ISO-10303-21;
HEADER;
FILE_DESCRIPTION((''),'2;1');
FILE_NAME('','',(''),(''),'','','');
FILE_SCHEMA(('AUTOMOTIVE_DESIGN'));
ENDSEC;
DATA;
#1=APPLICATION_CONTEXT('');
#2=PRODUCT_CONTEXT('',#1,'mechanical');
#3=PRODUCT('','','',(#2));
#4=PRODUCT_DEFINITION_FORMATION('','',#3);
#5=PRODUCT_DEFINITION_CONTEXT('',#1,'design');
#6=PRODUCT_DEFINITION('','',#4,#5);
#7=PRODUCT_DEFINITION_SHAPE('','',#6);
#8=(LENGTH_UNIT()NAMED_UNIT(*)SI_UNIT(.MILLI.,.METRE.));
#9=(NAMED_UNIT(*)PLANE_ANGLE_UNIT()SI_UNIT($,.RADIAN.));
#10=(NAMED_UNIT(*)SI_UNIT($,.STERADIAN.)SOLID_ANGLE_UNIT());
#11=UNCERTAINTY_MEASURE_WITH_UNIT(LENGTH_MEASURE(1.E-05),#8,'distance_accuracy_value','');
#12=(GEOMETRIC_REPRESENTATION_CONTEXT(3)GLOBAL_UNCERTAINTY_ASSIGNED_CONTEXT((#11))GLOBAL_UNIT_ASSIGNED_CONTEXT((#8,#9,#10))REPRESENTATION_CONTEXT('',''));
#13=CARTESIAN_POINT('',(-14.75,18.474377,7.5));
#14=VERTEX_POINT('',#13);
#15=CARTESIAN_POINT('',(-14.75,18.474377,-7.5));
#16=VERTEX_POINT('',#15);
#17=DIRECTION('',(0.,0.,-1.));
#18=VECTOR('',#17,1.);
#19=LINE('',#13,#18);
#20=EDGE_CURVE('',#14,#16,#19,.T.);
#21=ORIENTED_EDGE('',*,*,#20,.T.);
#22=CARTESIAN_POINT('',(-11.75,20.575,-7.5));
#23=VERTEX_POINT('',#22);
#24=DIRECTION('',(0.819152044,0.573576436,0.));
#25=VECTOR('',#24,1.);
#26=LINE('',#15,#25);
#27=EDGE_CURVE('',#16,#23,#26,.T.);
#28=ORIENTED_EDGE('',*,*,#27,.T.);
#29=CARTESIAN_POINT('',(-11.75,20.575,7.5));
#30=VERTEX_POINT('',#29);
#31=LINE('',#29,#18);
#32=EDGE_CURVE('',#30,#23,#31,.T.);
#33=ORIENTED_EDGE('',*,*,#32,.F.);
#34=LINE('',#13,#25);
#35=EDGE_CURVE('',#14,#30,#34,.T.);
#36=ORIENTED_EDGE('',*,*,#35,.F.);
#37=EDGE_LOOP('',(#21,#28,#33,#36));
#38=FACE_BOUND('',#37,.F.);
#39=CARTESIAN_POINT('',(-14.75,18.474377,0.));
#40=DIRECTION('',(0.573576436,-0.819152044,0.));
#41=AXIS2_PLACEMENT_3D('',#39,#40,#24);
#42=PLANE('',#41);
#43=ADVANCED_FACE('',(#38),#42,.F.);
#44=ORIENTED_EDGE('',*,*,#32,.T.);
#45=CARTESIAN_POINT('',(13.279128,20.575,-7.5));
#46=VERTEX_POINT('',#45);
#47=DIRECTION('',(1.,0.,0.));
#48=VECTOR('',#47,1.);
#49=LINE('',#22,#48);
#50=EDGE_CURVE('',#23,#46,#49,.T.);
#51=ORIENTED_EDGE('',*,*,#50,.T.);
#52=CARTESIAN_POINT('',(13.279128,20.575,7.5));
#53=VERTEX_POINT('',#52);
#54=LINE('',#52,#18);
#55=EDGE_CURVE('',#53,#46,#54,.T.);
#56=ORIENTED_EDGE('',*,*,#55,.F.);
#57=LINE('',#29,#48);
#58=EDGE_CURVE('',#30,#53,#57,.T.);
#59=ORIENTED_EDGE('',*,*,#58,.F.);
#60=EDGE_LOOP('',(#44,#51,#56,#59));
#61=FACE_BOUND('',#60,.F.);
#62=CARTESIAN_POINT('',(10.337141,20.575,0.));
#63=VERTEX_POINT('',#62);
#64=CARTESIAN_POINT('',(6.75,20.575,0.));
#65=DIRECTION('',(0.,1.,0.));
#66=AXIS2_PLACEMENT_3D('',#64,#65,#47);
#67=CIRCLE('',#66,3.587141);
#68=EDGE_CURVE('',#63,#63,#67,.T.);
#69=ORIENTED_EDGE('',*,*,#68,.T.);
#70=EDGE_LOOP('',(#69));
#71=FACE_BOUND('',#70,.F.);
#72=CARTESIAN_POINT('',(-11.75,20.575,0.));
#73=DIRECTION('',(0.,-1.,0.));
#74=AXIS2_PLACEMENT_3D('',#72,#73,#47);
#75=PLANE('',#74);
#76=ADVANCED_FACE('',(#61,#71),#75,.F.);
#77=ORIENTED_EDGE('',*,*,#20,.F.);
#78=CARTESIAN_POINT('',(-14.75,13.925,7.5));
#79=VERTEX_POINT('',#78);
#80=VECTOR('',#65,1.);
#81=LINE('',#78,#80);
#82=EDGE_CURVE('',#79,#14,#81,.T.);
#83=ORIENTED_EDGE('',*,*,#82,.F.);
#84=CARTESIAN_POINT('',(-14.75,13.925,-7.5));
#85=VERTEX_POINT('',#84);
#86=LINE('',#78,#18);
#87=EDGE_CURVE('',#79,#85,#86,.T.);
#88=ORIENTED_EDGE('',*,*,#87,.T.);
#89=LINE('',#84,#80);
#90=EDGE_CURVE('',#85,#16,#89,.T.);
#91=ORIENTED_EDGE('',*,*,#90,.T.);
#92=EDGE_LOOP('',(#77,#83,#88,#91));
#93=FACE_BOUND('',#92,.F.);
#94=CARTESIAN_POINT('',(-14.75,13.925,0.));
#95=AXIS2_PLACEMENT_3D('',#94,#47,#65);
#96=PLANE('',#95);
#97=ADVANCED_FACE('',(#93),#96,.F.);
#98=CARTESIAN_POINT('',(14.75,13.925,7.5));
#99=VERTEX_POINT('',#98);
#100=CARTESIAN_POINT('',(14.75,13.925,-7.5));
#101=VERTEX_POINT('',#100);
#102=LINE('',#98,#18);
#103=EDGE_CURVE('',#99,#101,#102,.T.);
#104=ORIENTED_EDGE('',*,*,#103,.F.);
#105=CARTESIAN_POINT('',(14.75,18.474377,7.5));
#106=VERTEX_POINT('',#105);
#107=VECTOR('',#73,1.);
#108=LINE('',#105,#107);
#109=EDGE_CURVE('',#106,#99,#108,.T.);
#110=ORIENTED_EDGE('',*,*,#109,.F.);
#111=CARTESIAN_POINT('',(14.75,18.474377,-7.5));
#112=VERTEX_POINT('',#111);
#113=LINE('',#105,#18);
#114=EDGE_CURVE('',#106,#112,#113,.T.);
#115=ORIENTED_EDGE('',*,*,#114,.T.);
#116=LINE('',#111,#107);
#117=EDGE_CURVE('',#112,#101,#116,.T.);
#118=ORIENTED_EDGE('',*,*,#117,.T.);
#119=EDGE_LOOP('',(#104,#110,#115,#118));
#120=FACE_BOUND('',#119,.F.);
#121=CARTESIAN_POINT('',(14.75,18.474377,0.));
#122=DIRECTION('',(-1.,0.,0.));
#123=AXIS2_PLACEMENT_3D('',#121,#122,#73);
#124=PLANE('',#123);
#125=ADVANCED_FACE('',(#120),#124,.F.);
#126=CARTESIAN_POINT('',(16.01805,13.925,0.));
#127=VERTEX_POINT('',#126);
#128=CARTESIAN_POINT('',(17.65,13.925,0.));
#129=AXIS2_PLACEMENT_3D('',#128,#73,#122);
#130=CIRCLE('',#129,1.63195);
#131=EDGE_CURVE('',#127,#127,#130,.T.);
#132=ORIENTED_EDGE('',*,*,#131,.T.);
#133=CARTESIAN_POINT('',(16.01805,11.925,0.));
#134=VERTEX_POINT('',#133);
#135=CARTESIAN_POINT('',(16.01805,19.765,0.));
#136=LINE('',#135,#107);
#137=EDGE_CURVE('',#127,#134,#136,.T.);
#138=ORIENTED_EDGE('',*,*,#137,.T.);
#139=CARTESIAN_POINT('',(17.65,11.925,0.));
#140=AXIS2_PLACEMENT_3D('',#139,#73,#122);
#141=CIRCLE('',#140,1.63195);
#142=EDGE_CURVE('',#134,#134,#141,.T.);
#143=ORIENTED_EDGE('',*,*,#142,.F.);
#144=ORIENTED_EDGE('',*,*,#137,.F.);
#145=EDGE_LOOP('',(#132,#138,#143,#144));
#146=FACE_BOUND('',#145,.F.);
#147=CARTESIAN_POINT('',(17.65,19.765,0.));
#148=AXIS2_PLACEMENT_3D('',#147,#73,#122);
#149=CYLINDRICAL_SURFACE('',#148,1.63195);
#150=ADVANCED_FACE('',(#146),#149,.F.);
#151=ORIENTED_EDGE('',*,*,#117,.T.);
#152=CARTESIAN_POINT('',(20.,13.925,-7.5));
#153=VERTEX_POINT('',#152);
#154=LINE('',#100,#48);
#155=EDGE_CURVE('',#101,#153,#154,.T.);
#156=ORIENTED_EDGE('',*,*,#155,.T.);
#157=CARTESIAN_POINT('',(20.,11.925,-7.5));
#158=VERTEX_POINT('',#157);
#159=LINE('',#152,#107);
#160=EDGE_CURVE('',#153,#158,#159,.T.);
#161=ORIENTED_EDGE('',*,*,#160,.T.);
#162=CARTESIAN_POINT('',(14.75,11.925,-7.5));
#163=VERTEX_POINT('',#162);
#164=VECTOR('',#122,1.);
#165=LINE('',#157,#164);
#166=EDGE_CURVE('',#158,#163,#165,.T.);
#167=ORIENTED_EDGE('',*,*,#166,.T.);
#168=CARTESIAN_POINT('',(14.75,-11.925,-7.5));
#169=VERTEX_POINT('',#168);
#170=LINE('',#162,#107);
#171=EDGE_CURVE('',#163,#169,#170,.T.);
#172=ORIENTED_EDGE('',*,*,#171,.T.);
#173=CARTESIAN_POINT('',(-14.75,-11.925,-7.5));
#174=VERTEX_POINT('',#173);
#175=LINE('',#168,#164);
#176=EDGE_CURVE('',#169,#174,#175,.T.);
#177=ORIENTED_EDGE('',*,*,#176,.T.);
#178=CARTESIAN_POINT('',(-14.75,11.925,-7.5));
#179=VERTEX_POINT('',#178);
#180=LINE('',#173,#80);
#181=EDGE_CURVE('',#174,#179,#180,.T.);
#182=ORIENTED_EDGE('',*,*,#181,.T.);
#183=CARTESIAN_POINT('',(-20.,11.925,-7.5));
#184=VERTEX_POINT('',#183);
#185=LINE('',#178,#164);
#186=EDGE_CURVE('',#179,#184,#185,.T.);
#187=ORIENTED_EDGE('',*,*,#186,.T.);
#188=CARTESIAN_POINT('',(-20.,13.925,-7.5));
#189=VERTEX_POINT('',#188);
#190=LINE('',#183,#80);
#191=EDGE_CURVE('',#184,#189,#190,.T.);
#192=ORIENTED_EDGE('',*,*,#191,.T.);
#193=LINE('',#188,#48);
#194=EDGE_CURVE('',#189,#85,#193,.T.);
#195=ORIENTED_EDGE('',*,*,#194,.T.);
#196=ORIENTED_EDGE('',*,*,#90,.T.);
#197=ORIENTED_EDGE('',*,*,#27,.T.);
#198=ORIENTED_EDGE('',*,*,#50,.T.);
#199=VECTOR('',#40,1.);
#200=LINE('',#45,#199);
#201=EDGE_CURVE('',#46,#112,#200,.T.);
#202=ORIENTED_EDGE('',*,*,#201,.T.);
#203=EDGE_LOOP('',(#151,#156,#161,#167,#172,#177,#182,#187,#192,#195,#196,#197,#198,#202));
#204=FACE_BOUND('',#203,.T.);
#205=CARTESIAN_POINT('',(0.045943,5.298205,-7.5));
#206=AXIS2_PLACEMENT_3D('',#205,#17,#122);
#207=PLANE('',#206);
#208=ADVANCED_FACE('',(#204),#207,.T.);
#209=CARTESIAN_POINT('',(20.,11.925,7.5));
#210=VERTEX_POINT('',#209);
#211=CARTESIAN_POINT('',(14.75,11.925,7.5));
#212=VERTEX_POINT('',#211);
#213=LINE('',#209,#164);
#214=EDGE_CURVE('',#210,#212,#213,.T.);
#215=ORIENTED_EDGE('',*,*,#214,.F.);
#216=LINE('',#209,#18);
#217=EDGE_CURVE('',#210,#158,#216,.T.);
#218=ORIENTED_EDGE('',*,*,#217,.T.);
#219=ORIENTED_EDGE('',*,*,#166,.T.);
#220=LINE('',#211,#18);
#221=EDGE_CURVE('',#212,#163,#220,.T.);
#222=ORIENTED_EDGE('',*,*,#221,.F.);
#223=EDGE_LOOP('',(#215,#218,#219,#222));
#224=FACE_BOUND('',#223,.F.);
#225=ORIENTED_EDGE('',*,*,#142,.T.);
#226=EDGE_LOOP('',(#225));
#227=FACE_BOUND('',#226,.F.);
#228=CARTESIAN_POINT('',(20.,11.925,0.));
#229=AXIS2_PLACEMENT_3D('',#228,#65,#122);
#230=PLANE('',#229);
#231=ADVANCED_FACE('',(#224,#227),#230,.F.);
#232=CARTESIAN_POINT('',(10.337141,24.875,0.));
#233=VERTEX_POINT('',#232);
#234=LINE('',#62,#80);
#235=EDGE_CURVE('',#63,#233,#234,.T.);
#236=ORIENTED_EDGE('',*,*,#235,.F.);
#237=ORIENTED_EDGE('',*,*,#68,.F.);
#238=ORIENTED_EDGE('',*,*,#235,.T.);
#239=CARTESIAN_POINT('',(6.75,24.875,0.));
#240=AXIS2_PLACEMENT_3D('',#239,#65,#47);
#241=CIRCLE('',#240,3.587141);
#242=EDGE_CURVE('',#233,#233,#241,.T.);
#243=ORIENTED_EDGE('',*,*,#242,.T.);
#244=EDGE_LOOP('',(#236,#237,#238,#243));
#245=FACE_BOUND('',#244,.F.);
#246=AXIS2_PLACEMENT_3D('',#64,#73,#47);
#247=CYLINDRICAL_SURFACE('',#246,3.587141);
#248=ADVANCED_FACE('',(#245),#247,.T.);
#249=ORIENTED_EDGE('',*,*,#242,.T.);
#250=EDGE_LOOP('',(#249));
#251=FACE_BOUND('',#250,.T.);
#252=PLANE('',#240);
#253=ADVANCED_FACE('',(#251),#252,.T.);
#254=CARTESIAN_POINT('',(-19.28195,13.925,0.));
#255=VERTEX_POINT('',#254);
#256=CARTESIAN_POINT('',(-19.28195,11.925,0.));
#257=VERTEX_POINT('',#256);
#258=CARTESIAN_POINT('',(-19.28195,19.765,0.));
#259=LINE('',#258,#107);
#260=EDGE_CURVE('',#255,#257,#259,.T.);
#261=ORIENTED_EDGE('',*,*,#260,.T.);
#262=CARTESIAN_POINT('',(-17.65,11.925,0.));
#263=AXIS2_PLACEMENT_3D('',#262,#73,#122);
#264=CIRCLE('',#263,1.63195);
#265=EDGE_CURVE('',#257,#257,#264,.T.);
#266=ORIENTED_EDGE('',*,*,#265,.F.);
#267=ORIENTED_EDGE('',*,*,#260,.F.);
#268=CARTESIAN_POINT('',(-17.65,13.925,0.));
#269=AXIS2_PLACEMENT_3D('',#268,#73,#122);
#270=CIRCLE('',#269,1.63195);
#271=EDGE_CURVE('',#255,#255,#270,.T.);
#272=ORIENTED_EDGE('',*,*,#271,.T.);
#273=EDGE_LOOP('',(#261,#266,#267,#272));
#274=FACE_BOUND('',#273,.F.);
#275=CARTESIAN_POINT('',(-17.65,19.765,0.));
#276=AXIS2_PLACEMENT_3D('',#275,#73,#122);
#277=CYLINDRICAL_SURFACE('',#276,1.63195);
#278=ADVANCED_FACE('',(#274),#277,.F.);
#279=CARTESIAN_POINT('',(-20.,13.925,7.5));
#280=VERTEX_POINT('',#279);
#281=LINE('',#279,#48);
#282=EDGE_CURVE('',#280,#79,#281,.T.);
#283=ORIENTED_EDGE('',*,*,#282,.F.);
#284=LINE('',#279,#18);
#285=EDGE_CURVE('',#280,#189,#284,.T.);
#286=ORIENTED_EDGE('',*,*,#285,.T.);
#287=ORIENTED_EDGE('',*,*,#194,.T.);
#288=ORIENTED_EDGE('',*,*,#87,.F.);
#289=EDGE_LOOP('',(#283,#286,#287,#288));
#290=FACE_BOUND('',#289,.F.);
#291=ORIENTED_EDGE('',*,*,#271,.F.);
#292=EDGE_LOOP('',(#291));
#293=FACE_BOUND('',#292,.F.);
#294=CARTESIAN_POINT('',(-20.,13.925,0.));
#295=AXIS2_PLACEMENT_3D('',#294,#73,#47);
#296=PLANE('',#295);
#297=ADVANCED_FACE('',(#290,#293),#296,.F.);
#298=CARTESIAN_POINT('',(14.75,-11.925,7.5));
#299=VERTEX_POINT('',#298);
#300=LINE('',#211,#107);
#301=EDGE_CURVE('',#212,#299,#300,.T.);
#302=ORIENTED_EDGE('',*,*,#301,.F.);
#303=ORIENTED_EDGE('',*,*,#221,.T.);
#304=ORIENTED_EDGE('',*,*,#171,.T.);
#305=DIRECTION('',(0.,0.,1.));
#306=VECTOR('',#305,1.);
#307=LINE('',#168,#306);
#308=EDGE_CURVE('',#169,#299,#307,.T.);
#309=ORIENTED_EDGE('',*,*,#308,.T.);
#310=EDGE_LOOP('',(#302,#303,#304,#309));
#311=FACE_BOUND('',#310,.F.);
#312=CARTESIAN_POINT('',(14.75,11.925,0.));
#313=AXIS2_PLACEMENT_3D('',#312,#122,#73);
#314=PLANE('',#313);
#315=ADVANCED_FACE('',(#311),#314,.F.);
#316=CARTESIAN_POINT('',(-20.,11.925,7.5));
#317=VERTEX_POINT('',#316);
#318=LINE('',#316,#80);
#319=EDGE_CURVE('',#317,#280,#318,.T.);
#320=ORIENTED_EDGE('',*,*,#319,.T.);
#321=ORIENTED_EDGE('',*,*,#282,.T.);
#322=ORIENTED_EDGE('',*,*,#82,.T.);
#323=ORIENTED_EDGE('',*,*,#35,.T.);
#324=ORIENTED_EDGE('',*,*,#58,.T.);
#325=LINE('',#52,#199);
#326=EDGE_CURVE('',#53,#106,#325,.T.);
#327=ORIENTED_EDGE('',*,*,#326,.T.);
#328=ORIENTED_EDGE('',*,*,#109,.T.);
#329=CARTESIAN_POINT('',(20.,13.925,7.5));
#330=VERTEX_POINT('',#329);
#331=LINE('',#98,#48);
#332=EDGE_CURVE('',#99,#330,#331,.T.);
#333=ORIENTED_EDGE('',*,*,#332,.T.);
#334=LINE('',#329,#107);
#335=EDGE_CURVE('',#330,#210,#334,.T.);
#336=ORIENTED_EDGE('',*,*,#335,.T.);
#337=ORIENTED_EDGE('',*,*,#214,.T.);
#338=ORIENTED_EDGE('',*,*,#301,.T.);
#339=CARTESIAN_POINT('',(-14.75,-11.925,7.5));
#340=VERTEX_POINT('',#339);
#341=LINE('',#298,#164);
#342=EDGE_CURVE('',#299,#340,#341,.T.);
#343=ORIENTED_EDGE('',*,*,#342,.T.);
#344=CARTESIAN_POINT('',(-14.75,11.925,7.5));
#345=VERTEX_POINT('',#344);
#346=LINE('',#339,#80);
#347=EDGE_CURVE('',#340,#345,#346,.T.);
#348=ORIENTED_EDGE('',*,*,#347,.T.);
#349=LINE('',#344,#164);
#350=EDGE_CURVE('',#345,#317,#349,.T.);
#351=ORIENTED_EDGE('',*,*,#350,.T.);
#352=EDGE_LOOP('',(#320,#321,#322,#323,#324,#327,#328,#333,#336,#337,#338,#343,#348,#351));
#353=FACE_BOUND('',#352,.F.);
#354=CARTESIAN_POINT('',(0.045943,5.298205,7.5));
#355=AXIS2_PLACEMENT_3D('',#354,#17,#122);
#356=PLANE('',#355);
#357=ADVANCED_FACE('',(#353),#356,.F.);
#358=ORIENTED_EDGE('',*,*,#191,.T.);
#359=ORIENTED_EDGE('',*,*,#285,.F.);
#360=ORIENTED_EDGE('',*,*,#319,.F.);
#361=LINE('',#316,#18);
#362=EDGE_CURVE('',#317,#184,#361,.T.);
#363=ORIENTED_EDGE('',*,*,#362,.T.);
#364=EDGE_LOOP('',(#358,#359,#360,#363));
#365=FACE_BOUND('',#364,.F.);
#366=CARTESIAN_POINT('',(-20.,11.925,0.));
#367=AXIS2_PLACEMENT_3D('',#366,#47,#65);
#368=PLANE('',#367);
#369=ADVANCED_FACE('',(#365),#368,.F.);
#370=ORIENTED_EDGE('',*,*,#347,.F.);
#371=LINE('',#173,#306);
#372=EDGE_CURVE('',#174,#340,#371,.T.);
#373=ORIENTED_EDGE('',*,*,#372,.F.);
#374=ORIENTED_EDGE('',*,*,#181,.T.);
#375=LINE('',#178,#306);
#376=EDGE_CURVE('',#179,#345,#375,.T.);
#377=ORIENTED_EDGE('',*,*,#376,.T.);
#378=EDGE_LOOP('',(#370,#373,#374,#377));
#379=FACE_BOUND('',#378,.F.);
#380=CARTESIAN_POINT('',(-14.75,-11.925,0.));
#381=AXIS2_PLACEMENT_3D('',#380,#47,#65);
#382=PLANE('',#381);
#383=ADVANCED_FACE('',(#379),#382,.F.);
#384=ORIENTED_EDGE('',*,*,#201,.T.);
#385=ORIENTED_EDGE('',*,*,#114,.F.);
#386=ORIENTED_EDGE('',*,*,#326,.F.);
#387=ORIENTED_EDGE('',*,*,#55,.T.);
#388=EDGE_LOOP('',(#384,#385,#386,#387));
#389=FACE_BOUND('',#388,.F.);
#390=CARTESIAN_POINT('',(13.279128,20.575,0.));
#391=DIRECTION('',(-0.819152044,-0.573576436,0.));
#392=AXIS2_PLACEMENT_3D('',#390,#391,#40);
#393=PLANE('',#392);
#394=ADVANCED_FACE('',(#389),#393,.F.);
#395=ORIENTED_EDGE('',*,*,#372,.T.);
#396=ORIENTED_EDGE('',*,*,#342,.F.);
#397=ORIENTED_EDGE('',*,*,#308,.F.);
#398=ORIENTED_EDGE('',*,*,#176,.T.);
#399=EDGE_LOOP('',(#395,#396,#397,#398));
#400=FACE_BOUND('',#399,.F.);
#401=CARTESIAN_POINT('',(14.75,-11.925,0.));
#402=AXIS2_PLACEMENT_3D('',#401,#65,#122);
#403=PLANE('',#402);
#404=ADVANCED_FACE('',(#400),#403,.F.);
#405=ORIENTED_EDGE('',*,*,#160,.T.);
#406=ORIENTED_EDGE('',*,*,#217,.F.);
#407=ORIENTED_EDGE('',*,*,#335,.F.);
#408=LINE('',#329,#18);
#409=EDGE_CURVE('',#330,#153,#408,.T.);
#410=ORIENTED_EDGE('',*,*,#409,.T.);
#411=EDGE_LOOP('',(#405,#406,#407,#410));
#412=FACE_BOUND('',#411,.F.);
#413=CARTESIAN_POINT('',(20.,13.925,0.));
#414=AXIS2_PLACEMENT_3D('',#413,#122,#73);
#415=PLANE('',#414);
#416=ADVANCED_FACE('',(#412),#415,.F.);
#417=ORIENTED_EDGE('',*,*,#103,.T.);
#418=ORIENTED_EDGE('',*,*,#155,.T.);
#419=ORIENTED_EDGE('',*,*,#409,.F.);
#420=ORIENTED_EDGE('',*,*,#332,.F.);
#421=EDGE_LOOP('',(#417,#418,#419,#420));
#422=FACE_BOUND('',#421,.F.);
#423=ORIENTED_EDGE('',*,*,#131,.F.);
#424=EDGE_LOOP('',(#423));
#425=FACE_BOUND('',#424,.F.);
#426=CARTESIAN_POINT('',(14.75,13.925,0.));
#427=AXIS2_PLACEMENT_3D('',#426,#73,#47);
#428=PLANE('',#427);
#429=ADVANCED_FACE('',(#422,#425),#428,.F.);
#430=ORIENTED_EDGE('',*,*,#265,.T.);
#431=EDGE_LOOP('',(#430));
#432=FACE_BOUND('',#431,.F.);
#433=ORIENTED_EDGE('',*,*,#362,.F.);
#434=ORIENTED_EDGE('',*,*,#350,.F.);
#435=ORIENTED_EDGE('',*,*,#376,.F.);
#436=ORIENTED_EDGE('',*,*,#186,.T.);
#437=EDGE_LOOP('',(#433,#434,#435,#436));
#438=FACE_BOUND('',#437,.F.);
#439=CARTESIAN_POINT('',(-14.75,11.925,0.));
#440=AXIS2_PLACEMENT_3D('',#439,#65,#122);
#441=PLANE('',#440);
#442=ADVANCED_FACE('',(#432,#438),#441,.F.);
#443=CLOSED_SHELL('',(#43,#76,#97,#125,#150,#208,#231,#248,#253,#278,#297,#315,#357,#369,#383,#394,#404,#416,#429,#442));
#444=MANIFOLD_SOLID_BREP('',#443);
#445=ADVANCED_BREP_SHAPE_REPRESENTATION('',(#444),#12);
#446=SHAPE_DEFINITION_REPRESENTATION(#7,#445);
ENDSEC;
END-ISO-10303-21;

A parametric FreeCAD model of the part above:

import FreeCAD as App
import Part
import Sketcher
Q = App.Units.Quantity


def add_polygon(sketch, points):
    """Adds a closed chain of lines whose ends are joined by coincident constraints."""
    first, n = sketch.GeometryCount, len(points)
    for a, b in zip(points, points[1:] + points[:1]):
        sketch.addGeometry(Part.LineSegment(App.Vector(*a, 0), App.Vector(*b, 0)), False)
    for i in range(n):
        sketch.addConstraint(Sketcher.Constraint("Coincident", first + i, 2, first + (i + 1) % n, 1))

doc = App.newDocument("Part")
params = doc.addObject("Spreadsheet::Sheet", "Params")
for row, (alias, value) in enumerate([
    ("sketch1_height", "2 mm"),
    ("sketch1_width", "29.5 mm"),
    ("sketch1_height2", "23.85 mm"),
    ("pad1_length", "15 mm"),
    ("pad2_length", "4.3 mm"),
    ("hole_diameter", "3.2639 mm"),
    ("hole_depth", "5.84 mm"),
], start=1):
    params.set(f"A{row}", alias)
    params.set(f"B{row}", "=" + value)
    params.setAlias(f"B{row}", alias)

body = doc.addObject("PartDesign::Body", "Body")

# Sketch on XY plane
sketch1 = doc.addObject("Sketcher::SketchObject", "Sketch")
body.addObject(sketch1)
sketch1.AttachmentSupport = (doc.XY_Plane, [""])
sketch1.MapMode = "FlatFace"
add_polygon(sketch1, [(-20, 11.9), (-14.8, 11.9), (-14.8, -11.9), (14.8, -11.9), (14.8, 11.9), (20, 11.9), (20, 13.9), (14.8, 13.9), (14.8, 18.5), (13.3, 20.6), (-11.8, 20.6), (-14.8, 18.5), (-14.8, 13.9), (-20, 13.9)])  # lines 0-13
sketch1.addConstraint([
    Sketcher.Constraint("Horizontal", 0),
    Sketcher.Constraint("Vertical", 1),
    Sketcher.Constraint("Horizontal", 2),
    Sketcher.Constraint("Vertical", 3),
    Sketcher.Constraint("Horizontal", 4),
    Sketcher.Constraint("Vertical", 5),
    Sketcher.Constraint("Horizontal", 6),
    Sketcher.Constraint("Vertical", 7),
    Sketcher.Constraint("Horizontal", 9),
    Sketcher.Constraint("Vertical", 11),
    Sketcher.Constraint("Horizontal", 12),
    Sketcher.Constraint("Vertical", 13),
    Sketcher.Constraint("Symmetric", 0, 2, 2, 2, -1, 1),
    Sketcher.Constraint("Symmetric", 7, 2, 10, 2, -2),
    Sketcher.Constraint("Symmetric", 5, 2, 12, 2, -2),
    Sketcher.Constraint("Perpendicular", 8, 10),
    Sketcher.Constraint("Horizontal", 0, 2, 3, 2),
    Sketcher.Constraint("Vertical", 3, 2, 6, 2),
    Sketcher.Constraint("DistanceY", 5, 1, 5, 2, 2.0),
    Sketcher.Constraint("Angle", 8, Q("125 deg")),
    Sketcher.Constraint("DistanceX", 2, 1, 2, 2, 29.5),
    Sketcher.Constraint("DistanceX", -1, 1, 4, 2, 20.0),
    Sketcher.Constraint("DistanceX", 0, 2, 9, 2, 3.0),
    Sketcher.Constraint("DistanceY", 1, 2, 1, 1, 23.85),
    Sketcher.Constraint("DistanceY", 6, 2, 8, 2, 6.65),
])
sketch1.setExpression("Constraints[32]", "Params.sketch1_height")
sketch1.setExpression("Constraints[34]", "Params.sketch1_width")
sketch1.setExpression("Constraints[37]", "Params.sketch1_height2")
pad1 = doc.addObject("PartDesign::Pad", "Pad")
body.addObject(pad1)
pad1.Profile = sketch1
pad1.setExpression("Length", "Params.pad1_length")
pad1.Midplane = True

# Sketch on XZ plane
sketch2 = doc.addObject("Sketcher::SketchObject", "Sketch001")
body.addObject(sketch2)
sketch2.AttachmentSupport = (doc.XZ_Plane, [""])
sketch2.MapMode = "FlatFace"
sketch2.AttachmentOffset = App.Placement(App.Vector(0, 0, -20.575), App.Rotation())
sketch2.addGeometry(Part.Circle(App.Vector(6.8, 0, 0), App.Vector(0, 0, 1), 3.6), False)
sketch2.addConstraint([
    Sketcher.Constraint("PointOnObject", 0, 3, -1),
    Sketcher.Constraint("DistanceX", -1, 1, 0, 3, 6.75),
    Sketcher.Constraint("Diameter", 0, 7.174283),
])
pad2 = doc.addObject("PartDesign::Pad", "Pad001")
body.addObject(pad2)
pad2.Profile = sketch2
pad2.setExpression("Length", "Params.pad2_length")
pad2.Reversed = True

# Sketch on XZ plane
sketch3 = doc.addObject("Sketcher::SketchObject", "Sketch002")
body.addObject(sketch3)
sketch3.AttachmentSupport = (doc.XZ_Plane, [""])
sketch3.MapMode = "FlatFace"
sketch3.AttachmentOffset = App.Placement(App.Vector(0, 0, -13.925), App.Rotation())
sketch3.addGeometry([
    Part.Circle(App.Vector(-17.6, 0, 0), App.Vector(0, 0, 1), 1.6),
    Part.Circle(App.Vector(17.6, 0, 0), App.Vector(0, 0, 1), 1.6),
], False)
sketch3.addConstraint([
    Sketcher.Constraint("Equal", 0, 1),
    Sketcher.Constraint("Symmetric", 0, 3, 1, 3, -1, 1),
    Sketcher.Constraint("PointOnObject", 0, 3, -1),
    Sketcher.Constraint("Diameter", 0, 3.2639),
    Sketcher.Constraint("DistanceX", 0, 3, 1, 3, 35.3),
])
doc.recompute()
hole = doc.addObject("PartDesign::Hole", "Hole")
body.addObject(hole)
hole.Profile = sketch3
hole.ThreadType = "None"
hole.setExpression("Diameter", "Params.hole_diameter")
hole.DepthType = "Dimension"
hole.setExpression("Depth", "Params.hole_depth")
hole.DrillPoint = "Angled"
hole.DrillPointAngle = 118
hole.Reversed = True

doc.recompute()
